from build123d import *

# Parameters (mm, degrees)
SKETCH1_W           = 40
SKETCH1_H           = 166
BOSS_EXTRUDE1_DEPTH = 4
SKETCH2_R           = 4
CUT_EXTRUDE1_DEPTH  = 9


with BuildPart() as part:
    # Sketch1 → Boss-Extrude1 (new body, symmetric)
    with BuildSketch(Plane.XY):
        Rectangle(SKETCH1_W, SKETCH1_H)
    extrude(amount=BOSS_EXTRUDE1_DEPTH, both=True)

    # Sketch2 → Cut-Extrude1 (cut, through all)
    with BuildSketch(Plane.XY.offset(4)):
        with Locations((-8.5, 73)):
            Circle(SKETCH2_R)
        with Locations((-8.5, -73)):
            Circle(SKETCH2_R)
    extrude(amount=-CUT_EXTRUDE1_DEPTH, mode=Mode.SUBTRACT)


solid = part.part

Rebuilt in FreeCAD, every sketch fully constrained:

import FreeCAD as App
import Part
import Sketcher
from FreeCAD import Vector
Q = App.Units.Quantity


def add_polygon(sketch, points):
    """Adds a closed chain of lines whose ends are joined by coincident constraints."""
    first, n = sketch.GeometryCount, len(points)
    for a, b in zip(points, points[1:] + points[:1]):
        sketch.addGeometry(Part.LineSegment(App.Vector(*a, 0), App.Vector(*b, 0)), False)
    for i in range(n):
        sketch.addConstraint(Sketcher.Constraint("Coincident", first + i, 2, first + (i + 1) % n, 1))

doc = App.newDocument("Part")
body = doc.addObject("PartDesign::Body", "Body")

sketch1 = body.newObject("Sketcher::SketchObject", "Sketch")
sketch1.AttachmentSupport = (doc.getObject("XY_Plane"), [""])
sketch1.MapMode = "FlatFace"
add_polygon(sketch1, [(-20, 83), (-20, -83), (20, -83), (20, 83)])
sketch1.addConstraint([
    Sketcher.Constraint("Vertical", 0),
    Sketcher.Constraint("Horizontal", 1),
    Sketcher.Constraint("Vertical", 2),
    Sketcher.Constraint("Horizontal", 3),
    Sketcher.Constraint("Symmetric", 0, 2, 2, 2, -1, 1),
    Sketcher.Constraint("DistanceX", 1, 1, 1, 2, Q("40 mm")),
    Sketcher.Constraint("DistanceY", 0, 2, 0, 1, Q("166 mm")),
])
pad1 = body.newObject("PartDesign::Pad", "Pad")
pad1.Profile = sketch1
pad1.Length = 8
pad1.Midplane = True

sketch2 = body.newObject("Sketcher::SketchObject", "Sketch001")
sketch2.AttachmentSupport = (doc.getObject("XY_Plane"), [""])
sketch2.MapMode = "FlatFace"
sketch2.AttachmentOffset = App.Placement(Vector(0, 0, 4), App.Rotation())
sketch2.addGeometry([
    Part.Circle(Vector(-8.5, 73, 0), Vector(0, 0, 1), 4),
    Part.Circle(Vector(-8.5, -73, 0), Vector(0, 0, 1), 4),
], False)
sketch2.addConstraint([
    Sketcher.Constraint("Equal", 0, 1),
    Sketcher.Constraint("Symmetric", 0, 3, 1, 3, -1),
    Sketcher.Constraint("Diameter", 0, Q("8 mm")),
    Sketcher.Constraint("DistanceY", -1, 1, 0, 3, Q("73 mm")),
    Sketcher.Constraint("DistanceX", 0, 3, -1, 1, Q("8.5 mm")),
])
pocket1 = body.newObject("PartDesign::Pocket", "Pocket")
pocket1.Profile = sketch2
pocket1.Type = "ThroughAll"

doc.recompute()
